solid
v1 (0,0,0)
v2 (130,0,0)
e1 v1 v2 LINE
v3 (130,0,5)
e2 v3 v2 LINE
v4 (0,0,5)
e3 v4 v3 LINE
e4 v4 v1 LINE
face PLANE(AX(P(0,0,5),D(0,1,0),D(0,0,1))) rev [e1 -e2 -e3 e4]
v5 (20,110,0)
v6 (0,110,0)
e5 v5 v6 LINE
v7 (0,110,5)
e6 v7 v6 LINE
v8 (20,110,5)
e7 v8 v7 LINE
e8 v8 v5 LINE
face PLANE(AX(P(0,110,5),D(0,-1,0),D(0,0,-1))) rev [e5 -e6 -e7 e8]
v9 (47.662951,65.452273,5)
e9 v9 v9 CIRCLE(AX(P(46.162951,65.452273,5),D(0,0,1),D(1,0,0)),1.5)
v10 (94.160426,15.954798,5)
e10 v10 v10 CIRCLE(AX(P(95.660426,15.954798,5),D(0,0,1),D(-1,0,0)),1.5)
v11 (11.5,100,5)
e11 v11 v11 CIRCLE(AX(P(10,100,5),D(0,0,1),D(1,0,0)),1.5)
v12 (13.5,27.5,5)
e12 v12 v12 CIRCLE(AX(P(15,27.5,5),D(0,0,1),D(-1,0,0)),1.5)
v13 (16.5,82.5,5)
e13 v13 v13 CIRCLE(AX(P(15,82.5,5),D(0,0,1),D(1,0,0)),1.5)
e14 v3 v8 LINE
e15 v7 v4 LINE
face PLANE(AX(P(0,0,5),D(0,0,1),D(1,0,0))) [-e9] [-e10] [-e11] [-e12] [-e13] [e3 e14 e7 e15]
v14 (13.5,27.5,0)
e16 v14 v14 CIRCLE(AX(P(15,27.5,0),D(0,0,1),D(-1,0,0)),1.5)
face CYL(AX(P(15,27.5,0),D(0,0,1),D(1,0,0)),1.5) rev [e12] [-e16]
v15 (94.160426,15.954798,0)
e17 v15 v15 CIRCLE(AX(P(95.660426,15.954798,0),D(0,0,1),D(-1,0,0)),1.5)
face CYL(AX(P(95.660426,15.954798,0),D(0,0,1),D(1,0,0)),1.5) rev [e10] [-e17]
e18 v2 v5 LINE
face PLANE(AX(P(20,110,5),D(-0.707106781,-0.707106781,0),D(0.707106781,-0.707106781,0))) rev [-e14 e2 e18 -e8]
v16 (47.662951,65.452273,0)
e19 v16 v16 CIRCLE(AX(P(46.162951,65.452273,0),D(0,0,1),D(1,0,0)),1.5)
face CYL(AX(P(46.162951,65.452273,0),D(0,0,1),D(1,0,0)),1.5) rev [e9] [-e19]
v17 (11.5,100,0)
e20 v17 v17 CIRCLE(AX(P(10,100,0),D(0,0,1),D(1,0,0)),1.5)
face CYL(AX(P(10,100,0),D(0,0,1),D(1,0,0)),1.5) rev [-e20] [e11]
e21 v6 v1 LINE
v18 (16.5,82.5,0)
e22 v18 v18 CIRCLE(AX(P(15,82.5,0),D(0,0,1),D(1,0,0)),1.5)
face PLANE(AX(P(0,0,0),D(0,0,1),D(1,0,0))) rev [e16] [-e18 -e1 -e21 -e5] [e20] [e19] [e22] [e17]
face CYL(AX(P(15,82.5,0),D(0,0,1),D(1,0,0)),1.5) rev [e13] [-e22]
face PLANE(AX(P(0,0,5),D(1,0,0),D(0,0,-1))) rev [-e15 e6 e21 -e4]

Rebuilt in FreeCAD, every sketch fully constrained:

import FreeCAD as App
import Part
import Sketcher
from FreeCAD import Vector


def add_polygon(sketch, points):
    """Adds a closed chain of lines whose ends are joined by coincident constraints."""
    first, n = sketch.GeometryCount, len(points)
    for a, b in zip(points, points[1:] + points[:1]):
        sketch.addGeometry(Part.LineSegment(App.Vector(*a, 0), App.Vector(*b, 0)), False)
    for i in range(n):
        sketch.addConstraint(Sketcher.Constraint("Coincident", first + i, 2, first + (i + 1) % n, 1))

doc = App.newDocument("Part")
params = doc.addObject("Spreadsheet::Sheet", "Params")
for row, (alias, value) in enumerate([
    ("sketch1_width", "130 mm"),
    ("sketch1_width2", "20 mm"),
    ("sketch1_height", "110 mm"),
    ("pad1_length", "5 mm"),
    ("sketch2_diameter", "3 mm"),
    ("sketch3_diameter", "3 mm"),
    ("sketch4_diameter", "3 mm"),
], start=1):
    params.set(f"A{row}", alias)
    params.set(f"B{row}", "=" + value)
    params.setAlias(f"B{row}", alias)

body = doc.addObject("PartDesign::Body", "Body")

# Sketch on XY plane
sketch1 = doc.addObject("Sketcher::SketchObject", "Sketch")
body.addObject(sketch1)
sketch1.AttachmentSupport = (doc.XY_Plane, [""])
sketch1.MapMode = "FlatFace"
add_polygon(sketch1, [(0, 110), (0, 0), (130, 0), (20, 110)])  # lines 0-3
sketch1.addConstraint(Sketcher.Constraint("Vertical", 0))
sketch1.addConstraint(Sketcher.Constraint("Horizontal", 1))
sketch1.addConstraint(Sketcher.Constraint("Horizontal", 3))
sketch1.addConstraint(Sketcher.Constraint("Coincident", 0, 2, -1, 1))
sketch1.addConstraint(Sketcher.Constraint("DistanceX", 1, 1, 1, 2, 130.0))
sketch1.addConstraint(Sketcher.Constraint("DistanceX", 3, 2, 3, 1, 20.0))
sketch1.addConstraint(Sketcher.Constraint("DistanceY", 0, 2, 0, 1, 110.0))
sketch1.setExpression("Constraints[8]", "Params.sketch1_width")
sketch1.setExpression("Constraints[9]", "Params.sketch1_width2")
sketch1.setExpression("Constraints[10]", "Params.sketch1_height")
pad1 = doc.addObject("PartDesign::Pad", "Pad")
body.addObject(pad1)
pad1.Profile = sketch1
pad1.setExpression("Length", "Params.pad1_length")

# Sketch on XY plane
sketch2 = doc.addObject("Sketcher::SketchObject", "Sketch001")
body.addObject(sketch2)
sketch2.AttachmentSupport = (doc.XY_Plane, [""])
sketch2.MapMode = "FlatFace"
sketch2.AttachmentOffset = App.Placement(Vector(0, 0, 5), App.Rotation())
sketch2.addGeometry(Part.Circle(Vector(15, 82.5, 0), Vector(0, 0, 1), 1.5), False)
sketch2.addGeometry(Part.Circle(Vector(15, 27.5, 0), Vector(0, 0, 1), 1.5), False)
sketch2.addConstraint(Sketcher.Constraint("Equal", 0, 1))
sketch2.addConstraint(Sketcher.Constraint("Vertical", 0, 3, 1, 3))
sketch2.addConstraint(Sketcher.Constraint("Diameter", 0, 3.0))
sketch2.addConstraint(Sketcher.Constraint("DistanceX", -1, 1, 0, 3, 15.0))
sketch2.addConstraint(Sketcher.Constraint("DistanceY", 1, 3, 0, 3, 55.0))
sketch2.addConstraint(Sketcher.Constraint("DistanceY", -1, 1, 0, 3, 82.5))
sketch2.setExpression("Constraints[2]", "Params.sketch2_diameter")
pocket1 = doc.addObject("PartDesign::Pocket", "Pocket")
body.addObject(pocket1)
pocket1.Profile = sketch2
pocket1.Type = "ThroughAll"

# Sketch on XY plane
sketch3 = doc.addObject("Sketcher::SketchObject", "Sketch002")
body.addObject(sketch3)
sketch3.AttachmentSupport = (doc.XY_Plane, [""])
sketch3.MapMode = "FlatFace"
sketch3.AttachmentOffset = App.Placement(Vector(0, 0, 5), App.Rotation())
sketch3.addGeometry(Part.Circle(Vector(46.2, 65.5, 0), Vector(0, 0, 1), 1.5), False)
sketch3.addGeometry(Part.Circle(Vector(95.7, 16, 0), Vector(0, 0, 1), 1.5), False)
sketch3.addConstraint(Sketcher.Constraint("Equal", 0, 1))
sketch3.addConstraint(Sketcher.Constraint("Diameter", 0, 3.0))
sketch3.addConstraint(Sketcher.Constraint("DistanceY", -1, 1, 1, 3, 15.954798))
sketch3.addConstraint(Sketcher.Constraint("DistanceX", -1, 1, 0, 3, 46.162951))
sketch3.addConstraint(Sketcher.Constraint("DistanceY", -1, 1, 0, 3, 65.452273))
sketch3.addConstraint(Sketcher.Constraint("DistanceX", -1, 1, 1, 3, 95.660426))
sketch3.setExpression("Constraints[1]", "Params.sketch3_diameter")
pocket2 = doc.addObject("PartDesign::Pocket", "Pocket001")
body.addObject(pocket2)
pocket2.Profile = sketch3
pocket2.Type = "ThroughAll"

# Sketch on XY plane
sketch4 = doc.addObject("Sketcher::SketchObject", "Sketch003")
body.addObject(sketch4)
sketch4.AttachmentSupport = (doc.XY_Plane, [""])
sketch4.MapMode = "FlatFace"
sketch4.AttachmentOffset = App.Placement(Vector(0, 0, 5), App.Rotation())
sketch4.addGeometry(Part.Circle(Vector(10, 100, 0), Vector(0, 0, 1), 1.5), False)
sketch4.addConstraint(Sketcher.Constraint("Diameter", 0, 3.0))
sketch4.addConstraint(Sketcher.Constraint("DistanceX", -1, 1, 0, 3, 10.0))
sketch4.addConstraint(Sketcher.Constraint("DistanceY", -1, 1, 0, 3, 100.0))
sketch4.setExpression("Constraints[0]", "Params.sketch4_diameter")
pocket3 = doc.addObject("PartDesign::Pocket", "Pocket002")
body.addObject(pocket3)
pocket3.Profile = sketch4
pocket3.Type = "ThroughAll"

doc.recompute()
